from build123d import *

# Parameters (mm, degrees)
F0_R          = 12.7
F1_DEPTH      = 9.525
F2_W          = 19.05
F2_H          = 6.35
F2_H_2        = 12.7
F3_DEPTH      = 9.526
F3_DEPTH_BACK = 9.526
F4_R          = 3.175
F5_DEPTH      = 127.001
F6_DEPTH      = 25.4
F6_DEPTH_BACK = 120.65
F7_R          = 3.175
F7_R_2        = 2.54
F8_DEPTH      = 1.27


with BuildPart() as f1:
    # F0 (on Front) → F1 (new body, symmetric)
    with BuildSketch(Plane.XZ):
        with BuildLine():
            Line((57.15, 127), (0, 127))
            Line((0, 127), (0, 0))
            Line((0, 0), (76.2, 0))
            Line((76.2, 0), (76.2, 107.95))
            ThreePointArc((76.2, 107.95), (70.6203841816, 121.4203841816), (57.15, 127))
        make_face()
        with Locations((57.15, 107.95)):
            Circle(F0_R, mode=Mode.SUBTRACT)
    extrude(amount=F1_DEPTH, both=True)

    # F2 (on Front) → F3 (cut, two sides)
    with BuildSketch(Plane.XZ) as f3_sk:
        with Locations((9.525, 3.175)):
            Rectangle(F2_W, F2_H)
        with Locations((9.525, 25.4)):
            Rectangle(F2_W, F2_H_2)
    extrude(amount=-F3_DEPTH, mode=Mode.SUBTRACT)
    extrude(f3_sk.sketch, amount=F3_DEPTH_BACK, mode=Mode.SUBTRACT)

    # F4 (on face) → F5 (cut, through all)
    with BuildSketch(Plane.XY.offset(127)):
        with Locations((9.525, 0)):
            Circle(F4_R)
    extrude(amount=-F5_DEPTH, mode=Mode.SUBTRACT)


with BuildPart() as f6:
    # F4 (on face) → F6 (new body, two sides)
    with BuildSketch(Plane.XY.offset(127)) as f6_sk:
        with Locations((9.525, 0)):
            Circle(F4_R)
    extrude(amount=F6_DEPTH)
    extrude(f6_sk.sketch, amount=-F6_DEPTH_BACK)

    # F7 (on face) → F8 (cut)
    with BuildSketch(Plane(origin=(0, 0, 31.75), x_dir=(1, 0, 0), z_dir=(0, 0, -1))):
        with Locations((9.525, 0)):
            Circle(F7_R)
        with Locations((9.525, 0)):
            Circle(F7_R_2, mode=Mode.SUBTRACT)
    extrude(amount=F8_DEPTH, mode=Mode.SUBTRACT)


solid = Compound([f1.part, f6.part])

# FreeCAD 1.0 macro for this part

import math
import FreeCAD as App
import Part
import Sketcher
from FreeCAD import Vector
Q = App.Units.Quantity


def add_polygon(sketch, points):
    """Adds a closed chain of lines whose ends are joined by coincident constraints."""
    first, n = sketch.GeometryCount, len(points)
    for a, b in zip(points, points[1:] + points[:1]):
        sketch.addGeometry(Part.LineSegment(App.Vector(*a, 0), App.Vector(*b, 0)), False)
    for i in range(n):
        sketch.addConstraint(Sketcher.Constraint("Coincident", first + i, 2, first + (i + 1) % n, 1))

doc = App.newDocument("Part")
body = doc.addObject("PartDesign::Body", "Body")

# Sketch on XZ plane
sketch1 = body.newObject("Sketcher::SketchObject", "Sketch")
sketch1.AttachmentSupport = (doc.getObject("XZ_Plane"), [""])
sketch1.MapMode = "FlatFace"
sketch1.addGeometry([
    Part.LineSegment(Vector(57.15, 127, 0), Vector(0, 127, 0)),  # 0
    Part.LineSegment(Vector(0, 127, 0), Vector(0, 0, 0)),  # 1
    Part.LineSegment(Vector(0, 0, 0), Vector(76.2, 0, 0)),  # 2
    Part.LineSegment(Vector(76.2, 0, 0), Vector(76.2, 107.95, 0)),  # 3
    Part.ArcOfCircle(Part.Circle(Vector(57.15, 107.95, 0), Vector(0, 0, 1), 19.05), math.radians(0), math.radians(90)),  # 4
    Part.Circle(Vector(57.15, 107.95, 0), Vector(0, 0, 1), 12.7),  # 5
], False)
sketch1.addConstraint([
    Sketcher.Constraint("Coincident", 0, 2, 1, 1),
    Sketcher.Constraint("Coincident", 1, 2, 2, 1),
    Sketcher.Constraint("Coincident", 2, 2, 3, 1),
    Sketcher.Constraint("Tangent", 3, 2, 4, 1),
    Sketcher.Constraint("Tangent", 4, 2, 0, 1),
    Sketcher.Constraint("Horizontal", 0),
    Sketcher.Constraint("Vertical", 1),
    Sketcher.Constraint("Horizontal", 2),
    Sketcher.Constraint("Vertical", 3),
    Sketcher.Constraint("Coincident", 1, 2, -1, 1),
    Sketcher.Constraint("Coincident", 5, 3, 4, 3),
    Sketcher.Constraint("Diameter", 5, Q("1 in")),
    Sketcher.Constraint("DistanceX", 2, 1, 2, 2, Q("3 in")),
    Sketcher.Constraint("DistanceY", 1, 2, 1, 1, Q("5 in")),
    Sketcher.Constraint("Radius", 4, Q("0.75 in")),
])
pad1 = body.newObject("PartDesign::Pad", "Pad")
pad1.Profile = sketch1
pad1.Length = Q("0.75 in")
pad1.Midplane = True

# Sketch on XZ plane
sketch2 = body.newObject("Sketcher::SketchObject", "Sketch001")
sketch2.AttachmentSupport = (doc.getObject("XZ_Plane"), [""])
sketch2.MapMode = "FlatFace"
add_polygon(sketch2, [(0, 6.35), (0, 0), (19.05, 0), (19.05, 6.35)])  # lines 0-3
add_polygon(sketch2, [(0, 31.75), (0, 19.05), (19.05, 19.05), (19.05, 31.75)])  # lines 4-7
sketch2.addConstraint([
    Sketcher.Constraint("Vertical", 0),
    Sketcher.Constraint("Horizontal", 1),
    Sketcher.Constraint("Vertical", 2),
    Sketcher.Constraint("Horizontal", 3),
    Sketcher.Constraint("Vertical", 4),
    Sketcher.Constraint("Horizontal", 5),
    Sketcher.Constraint("Vertical", 6),
    Sketcher.Constraint("Horizontal", 7),
    Sketcher.Constraint("Coincident", 0, 2, -1, 1),
    Sketcher.Constraint("PointOnObject", 4, 2, -2),
    Sketcher.Constraint("Vertical", 2, 2, 5, 2),
    Sketcher.Constraint("DistanceY", 4, 2, 4, 1, Q("0.5 in")),
    Sketcher.Constraint("DistanceY", 2, 2, 6, 2, Q("1 in")),
    Sketcher.Constraint("DistanceX", 1, 1, 1, 2, Q("0.75 in")),
    Sketcher.Constraint("DistanceY", 0, 2, 0, 1, Q("0.25 in")),
])
pocket1 = body.newObject("PartDesign::Pocket", "Pocket")
pocket1.Profile = sketch2
pocket1.Type = "ThroughAll"
pocket1.Midplane = True

# Sketch on XY plane
sketch3 = body.newObject("Sketcher::SketchObject", "Sketch002")
sketch3.AttachmentSupport = (doc.getObject("XY_Plane"), [""])
sketch3.MapMode = "FlatFace"
sketch3.AttachmentOffset = App.Placement(Vector(0, 0, 5 * 25.4), App.Rotation())
sketch3.addGeometry(Part.Circle(Vector(9.525, 0, 0), Vector(0, 0, 1), 3.175), False)
sketch3.addConstraint([
    Sketcher.Constraint("PointOnObject", 0, 3, -1),
    Sketcher.Constraint("Diameter", 0, Q("0.25 in")),
    Sketcher.Constraint("DistanceX", -1, 1, 0, 3, Q("0.375 in")),
])
pocket2 = body.newObject("PartDesign::Pocket", "Pocket001")
pocket2.Profile = sketch3
pocket2.Type = "ThroughAll"
body2 = doc.addObject("PartDesign::Body", "Body001")

# Sketch on XY plane
sketch4 = body2.newObject("Sketcher::SketchObject", "Sketch003")
sketch4.AttachmentSupport = (doc.getObject("XY_Plane001"), [""])
sketch4.MapMode = "FlatFace"
sketch4.AttachmentOffset = App.Placement(Vector(0, 0, 5 * 25.4), App.Rotation())
sketch4.addGeometry(Part.Circle(Vector(9.525, 0, 0), Vector(0, 0, 1), 3.175), False)
sketch4.addConstraint([
    Sketcher.Constraint("PointOnObject", 0, 3, -1),
    Sketcher.Constraint("Diameter", 0, Q("0.25 in")),
    Sketcher.Constraint("DistanceX", -1, 1, 0, 3, Q("0.375 in")),
])
pad2 = body2.newObject("PartDesign::Pad", "Pad001")
pad2.Profile = sketch4
pad2.Type = "TwoLengths"
pad2.Length = Q("1 in")
pad2.Length2 = Q("4.75 in")

# Sketch on XY plane
sketch5 = body2.newObject("Sketcher::SketchObject", "Sketch004")
sketch5.AttachmentSupport = (doc.getObject("XY_Plane001"), [""])
sketch5.MapMode = "FlatFace"
sketch5.AttachmentOffset = App.Placement(Vector(0, 0, 1.25 * 25.4), App.Rotation())
sketch5.addGeometry([
    Part.Circle(Vector(9.525, 0, 0), Vector(0, 0, 1), 3.175),
    Part.Circle(Vector(9.525, 0, 0), Vector(0, 0, 1), 2.54),
], False)
sketch5.addConstraint([
    Sketcher.Constraint("Coincident", 1, 3, 0, 3),
    Sketcher.Constraint("PointOnObject", 0, 3, -1),
    Sketcher.Constraint("Diameter", 1, Q("0.2 in")),
    Sketcher.Constraint("Diameter", 0, Q("0.25 in")),
    Sketcher.Constraint("DistanceX", -1, 1, 0, 3, Q("0.375 in")),
])
pocket3 = body2.newObject("PartDesign::Pocket", "Pocket002")
pocket3.Profile = sketch5
pocket3.Length = Q("0.05 in")

doc.recompute()
